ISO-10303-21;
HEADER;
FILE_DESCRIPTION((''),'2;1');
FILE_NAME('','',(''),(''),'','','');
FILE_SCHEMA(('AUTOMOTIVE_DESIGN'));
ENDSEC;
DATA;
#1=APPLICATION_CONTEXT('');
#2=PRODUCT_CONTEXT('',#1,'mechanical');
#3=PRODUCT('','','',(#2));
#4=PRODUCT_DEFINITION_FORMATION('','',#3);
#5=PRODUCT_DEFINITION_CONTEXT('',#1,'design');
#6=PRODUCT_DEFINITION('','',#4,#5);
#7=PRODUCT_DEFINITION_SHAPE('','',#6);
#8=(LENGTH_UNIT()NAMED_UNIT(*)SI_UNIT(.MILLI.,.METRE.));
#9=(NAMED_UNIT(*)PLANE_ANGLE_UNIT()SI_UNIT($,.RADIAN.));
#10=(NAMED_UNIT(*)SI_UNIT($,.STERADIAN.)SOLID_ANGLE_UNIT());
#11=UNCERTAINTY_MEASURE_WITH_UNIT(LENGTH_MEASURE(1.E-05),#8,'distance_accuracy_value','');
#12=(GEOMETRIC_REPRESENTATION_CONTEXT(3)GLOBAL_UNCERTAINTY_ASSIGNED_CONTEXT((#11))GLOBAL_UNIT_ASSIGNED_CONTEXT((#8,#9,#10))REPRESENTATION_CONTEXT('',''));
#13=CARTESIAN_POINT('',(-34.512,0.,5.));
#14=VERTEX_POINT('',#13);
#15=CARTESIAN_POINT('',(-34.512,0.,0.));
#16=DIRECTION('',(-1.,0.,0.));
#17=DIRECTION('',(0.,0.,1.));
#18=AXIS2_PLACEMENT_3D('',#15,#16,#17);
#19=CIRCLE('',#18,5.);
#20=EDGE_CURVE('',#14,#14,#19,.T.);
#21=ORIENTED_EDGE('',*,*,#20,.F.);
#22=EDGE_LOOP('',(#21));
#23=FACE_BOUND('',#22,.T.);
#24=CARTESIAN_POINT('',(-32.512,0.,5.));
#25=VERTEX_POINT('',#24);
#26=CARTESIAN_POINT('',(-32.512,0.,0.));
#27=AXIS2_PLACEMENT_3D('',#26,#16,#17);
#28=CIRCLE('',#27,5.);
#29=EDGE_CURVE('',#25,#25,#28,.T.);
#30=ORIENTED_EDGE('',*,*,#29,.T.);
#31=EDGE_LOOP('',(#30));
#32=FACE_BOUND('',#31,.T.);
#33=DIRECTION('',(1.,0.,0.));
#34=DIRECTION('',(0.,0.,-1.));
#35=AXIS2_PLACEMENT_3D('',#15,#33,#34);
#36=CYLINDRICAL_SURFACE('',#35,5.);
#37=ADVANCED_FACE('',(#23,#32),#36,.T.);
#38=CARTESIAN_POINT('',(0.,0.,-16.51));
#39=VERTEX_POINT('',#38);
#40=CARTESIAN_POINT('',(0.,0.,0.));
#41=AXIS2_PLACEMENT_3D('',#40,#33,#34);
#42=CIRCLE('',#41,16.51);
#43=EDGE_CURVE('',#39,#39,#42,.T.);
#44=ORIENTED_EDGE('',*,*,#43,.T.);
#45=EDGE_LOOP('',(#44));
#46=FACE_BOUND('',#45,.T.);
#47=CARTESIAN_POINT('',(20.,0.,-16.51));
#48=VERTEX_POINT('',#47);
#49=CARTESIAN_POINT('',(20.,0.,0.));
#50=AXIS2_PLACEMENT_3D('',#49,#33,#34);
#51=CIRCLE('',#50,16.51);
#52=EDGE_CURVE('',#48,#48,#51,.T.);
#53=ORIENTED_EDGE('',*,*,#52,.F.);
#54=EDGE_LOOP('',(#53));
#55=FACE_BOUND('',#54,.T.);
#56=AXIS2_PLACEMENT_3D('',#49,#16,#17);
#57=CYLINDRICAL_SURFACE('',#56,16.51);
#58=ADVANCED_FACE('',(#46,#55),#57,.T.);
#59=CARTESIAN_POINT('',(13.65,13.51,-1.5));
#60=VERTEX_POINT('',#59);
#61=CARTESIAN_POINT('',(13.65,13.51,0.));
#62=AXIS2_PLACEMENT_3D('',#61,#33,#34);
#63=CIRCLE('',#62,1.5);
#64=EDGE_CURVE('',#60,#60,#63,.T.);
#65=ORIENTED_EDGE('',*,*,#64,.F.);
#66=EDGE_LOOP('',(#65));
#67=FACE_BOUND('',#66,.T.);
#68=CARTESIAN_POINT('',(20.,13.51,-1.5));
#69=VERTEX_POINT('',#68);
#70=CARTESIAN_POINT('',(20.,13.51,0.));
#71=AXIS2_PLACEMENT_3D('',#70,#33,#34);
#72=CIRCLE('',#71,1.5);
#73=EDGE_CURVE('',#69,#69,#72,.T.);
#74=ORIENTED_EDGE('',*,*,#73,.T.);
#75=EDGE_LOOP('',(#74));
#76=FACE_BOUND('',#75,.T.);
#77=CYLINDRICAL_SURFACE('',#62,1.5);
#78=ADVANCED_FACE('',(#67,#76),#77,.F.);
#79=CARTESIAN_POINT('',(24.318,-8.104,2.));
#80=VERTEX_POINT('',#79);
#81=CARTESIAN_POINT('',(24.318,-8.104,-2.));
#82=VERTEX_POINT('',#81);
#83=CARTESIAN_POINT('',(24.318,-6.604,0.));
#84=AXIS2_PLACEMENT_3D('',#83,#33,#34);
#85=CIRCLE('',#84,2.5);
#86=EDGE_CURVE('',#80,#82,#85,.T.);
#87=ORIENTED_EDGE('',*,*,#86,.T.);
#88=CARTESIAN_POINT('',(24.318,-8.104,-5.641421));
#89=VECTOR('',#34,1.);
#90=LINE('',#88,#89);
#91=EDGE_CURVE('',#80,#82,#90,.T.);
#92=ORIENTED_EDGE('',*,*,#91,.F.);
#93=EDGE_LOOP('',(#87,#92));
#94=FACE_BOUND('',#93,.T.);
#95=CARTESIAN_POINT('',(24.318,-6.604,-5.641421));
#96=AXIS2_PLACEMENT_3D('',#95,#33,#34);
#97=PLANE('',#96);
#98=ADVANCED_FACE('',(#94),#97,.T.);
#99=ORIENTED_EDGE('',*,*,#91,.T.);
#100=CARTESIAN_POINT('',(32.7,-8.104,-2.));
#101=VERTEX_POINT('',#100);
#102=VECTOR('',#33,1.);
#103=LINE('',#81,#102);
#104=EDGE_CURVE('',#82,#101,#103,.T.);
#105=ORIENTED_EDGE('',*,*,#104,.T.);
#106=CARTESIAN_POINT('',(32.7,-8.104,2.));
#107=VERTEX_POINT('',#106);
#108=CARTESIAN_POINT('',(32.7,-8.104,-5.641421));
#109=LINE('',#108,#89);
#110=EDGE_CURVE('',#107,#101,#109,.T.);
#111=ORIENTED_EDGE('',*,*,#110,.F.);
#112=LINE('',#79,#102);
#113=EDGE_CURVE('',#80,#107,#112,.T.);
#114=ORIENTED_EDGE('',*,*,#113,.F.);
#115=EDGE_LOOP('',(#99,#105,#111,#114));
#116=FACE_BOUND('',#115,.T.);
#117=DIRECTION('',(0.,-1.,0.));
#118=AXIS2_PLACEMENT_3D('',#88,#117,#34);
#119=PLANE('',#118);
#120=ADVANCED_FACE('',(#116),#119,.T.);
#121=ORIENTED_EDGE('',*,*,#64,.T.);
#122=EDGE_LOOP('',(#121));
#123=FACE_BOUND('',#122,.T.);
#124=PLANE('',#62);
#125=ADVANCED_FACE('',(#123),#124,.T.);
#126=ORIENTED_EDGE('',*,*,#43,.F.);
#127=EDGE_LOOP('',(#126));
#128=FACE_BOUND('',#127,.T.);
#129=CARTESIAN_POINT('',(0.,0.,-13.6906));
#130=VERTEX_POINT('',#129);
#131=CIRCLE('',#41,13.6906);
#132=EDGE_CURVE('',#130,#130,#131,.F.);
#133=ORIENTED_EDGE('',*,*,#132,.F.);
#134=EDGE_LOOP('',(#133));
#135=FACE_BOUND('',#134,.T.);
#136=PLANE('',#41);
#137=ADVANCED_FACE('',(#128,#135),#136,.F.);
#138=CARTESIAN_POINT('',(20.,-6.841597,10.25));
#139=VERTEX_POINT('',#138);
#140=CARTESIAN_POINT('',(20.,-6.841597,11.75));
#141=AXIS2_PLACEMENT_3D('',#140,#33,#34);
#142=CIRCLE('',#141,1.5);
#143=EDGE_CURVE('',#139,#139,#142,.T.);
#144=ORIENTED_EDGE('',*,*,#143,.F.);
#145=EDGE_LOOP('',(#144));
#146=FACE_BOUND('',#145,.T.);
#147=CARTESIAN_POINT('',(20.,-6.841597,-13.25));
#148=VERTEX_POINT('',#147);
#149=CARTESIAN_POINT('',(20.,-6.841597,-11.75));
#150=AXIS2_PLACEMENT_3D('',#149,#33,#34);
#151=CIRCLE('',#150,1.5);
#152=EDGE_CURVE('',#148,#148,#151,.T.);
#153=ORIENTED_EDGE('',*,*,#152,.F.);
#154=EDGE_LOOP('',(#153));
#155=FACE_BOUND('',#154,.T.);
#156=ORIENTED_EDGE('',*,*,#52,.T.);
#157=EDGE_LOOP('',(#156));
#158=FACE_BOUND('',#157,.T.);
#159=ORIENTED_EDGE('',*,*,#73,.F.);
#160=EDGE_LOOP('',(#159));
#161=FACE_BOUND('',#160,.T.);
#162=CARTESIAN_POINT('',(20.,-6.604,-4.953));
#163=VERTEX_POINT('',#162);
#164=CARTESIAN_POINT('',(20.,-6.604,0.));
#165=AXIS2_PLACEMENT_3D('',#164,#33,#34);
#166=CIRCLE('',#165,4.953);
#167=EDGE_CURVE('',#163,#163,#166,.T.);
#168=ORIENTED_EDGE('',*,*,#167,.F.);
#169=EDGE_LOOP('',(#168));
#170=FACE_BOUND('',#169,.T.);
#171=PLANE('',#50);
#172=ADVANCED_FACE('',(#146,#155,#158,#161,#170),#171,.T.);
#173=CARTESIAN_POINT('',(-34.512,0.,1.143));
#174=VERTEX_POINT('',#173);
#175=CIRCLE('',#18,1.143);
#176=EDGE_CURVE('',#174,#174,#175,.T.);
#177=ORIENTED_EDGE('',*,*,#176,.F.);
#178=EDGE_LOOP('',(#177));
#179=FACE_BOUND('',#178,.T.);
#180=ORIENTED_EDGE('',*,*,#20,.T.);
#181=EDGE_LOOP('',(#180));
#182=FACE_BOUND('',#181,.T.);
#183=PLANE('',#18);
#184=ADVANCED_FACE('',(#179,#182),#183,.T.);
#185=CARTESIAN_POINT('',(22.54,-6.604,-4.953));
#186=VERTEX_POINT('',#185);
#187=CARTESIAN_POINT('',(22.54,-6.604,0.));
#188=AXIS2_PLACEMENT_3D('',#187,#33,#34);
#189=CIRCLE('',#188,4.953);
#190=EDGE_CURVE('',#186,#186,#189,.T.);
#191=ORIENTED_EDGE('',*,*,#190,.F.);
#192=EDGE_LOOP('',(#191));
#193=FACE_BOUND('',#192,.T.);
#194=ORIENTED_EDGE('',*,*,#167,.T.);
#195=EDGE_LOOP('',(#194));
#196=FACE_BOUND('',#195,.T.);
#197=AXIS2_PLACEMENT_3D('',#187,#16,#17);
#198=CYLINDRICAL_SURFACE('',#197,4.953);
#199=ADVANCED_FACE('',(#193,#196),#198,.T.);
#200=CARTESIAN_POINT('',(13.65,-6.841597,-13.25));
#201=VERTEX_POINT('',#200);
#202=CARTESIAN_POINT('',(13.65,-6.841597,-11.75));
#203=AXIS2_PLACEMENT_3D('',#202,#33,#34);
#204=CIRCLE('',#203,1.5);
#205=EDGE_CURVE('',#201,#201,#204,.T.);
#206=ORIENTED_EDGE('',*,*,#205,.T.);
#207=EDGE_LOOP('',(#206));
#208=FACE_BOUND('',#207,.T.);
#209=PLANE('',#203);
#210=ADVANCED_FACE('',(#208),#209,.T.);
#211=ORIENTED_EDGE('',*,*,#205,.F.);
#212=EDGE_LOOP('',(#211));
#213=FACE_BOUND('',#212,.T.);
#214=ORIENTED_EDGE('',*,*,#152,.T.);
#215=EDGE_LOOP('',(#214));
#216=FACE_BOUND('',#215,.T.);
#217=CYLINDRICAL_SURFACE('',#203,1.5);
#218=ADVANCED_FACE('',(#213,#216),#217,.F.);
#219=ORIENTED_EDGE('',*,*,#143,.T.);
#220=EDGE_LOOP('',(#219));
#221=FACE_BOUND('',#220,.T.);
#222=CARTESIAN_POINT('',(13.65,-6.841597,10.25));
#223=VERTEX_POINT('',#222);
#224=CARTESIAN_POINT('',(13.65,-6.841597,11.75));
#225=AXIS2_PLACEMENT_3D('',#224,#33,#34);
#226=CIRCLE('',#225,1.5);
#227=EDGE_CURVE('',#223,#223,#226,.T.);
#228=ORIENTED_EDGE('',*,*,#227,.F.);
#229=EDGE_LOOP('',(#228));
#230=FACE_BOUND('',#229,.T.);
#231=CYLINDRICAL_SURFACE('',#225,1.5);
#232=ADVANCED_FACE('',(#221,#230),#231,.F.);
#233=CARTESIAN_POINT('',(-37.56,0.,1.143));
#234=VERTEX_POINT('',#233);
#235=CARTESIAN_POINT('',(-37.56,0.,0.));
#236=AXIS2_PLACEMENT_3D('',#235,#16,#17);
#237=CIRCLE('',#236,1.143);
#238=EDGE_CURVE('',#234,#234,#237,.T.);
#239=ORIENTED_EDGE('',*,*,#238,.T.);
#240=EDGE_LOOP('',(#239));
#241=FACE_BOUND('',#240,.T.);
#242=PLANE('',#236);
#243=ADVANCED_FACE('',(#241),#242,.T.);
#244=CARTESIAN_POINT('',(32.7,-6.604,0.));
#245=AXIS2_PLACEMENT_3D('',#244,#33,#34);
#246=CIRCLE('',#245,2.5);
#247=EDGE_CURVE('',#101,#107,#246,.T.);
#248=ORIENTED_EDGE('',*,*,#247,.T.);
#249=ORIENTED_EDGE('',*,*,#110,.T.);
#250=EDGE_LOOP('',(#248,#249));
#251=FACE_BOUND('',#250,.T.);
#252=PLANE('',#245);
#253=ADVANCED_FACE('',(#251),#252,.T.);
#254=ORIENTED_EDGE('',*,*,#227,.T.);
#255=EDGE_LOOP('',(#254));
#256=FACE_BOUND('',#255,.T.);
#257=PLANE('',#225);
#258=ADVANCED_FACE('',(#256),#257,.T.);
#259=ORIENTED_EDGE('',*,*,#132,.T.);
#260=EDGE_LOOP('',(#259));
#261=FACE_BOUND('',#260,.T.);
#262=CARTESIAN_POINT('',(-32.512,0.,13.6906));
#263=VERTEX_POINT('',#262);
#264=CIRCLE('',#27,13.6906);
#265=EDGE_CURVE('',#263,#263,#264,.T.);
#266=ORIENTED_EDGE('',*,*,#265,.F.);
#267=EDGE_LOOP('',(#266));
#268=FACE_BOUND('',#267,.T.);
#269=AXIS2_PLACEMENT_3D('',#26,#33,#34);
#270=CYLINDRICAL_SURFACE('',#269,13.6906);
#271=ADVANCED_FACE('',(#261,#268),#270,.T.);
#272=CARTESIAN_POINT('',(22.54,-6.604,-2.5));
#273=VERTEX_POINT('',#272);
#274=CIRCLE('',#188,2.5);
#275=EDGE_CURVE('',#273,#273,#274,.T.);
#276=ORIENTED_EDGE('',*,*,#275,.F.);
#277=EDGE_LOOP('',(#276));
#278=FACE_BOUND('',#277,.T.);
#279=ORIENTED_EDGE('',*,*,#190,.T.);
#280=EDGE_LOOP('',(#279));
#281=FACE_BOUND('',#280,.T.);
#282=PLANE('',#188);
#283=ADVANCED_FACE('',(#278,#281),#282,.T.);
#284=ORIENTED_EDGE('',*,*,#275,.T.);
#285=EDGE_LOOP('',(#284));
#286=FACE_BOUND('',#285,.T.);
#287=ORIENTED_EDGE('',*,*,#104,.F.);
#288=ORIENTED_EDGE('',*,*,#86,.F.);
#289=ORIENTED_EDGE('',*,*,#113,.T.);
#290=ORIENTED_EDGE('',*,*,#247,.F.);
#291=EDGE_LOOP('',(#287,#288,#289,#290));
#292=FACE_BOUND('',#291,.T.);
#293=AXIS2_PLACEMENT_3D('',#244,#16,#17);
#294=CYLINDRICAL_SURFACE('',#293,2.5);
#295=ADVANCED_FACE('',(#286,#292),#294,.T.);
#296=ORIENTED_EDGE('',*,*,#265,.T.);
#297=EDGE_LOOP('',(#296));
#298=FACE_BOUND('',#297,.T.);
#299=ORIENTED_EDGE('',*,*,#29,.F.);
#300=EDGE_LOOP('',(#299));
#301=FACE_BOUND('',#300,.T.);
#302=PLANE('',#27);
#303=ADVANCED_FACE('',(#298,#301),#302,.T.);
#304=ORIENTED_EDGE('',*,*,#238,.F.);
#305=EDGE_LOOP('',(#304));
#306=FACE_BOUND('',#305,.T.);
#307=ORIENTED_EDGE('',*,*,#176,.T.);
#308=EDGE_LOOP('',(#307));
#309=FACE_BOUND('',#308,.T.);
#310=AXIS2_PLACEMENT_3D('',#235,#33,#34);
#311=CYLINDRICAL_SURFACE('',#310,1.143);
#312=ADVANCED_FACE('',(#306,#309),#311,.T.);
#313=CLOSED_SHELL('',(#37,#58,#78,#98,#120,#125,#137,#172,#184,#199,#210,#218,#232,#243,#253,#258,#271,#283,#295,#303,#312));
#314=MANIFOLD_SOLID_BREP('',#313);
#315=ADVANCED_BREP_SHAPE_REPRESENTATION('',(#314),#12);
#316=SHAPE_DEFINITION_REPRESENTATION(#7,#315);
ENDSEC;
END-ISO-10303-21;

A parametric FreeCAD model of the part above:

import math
import FreeCAD as App
import Part
import Sketcher
Q = App.Units.Quantity

doc = App.newDocument("Part")
params = doc.addObject("Spreadsheet::Sheet", "Params")
for row, (alias, value) in enumerate([
    ("sketch1_diameter", "1.3 in"),
    ("pad1_length", "20 mm"),
    ("sketch2_diameter", "1.078 in"),
    ("pad2_length", "1.28 in"),
    ("pocket1_length", "0.25 in"),
    ("sketch4_diameter", "0.39 in"),
    ("pad3_length", "0.1 in"),
    ("pad4_length", "0.4 in"),
    ("pad5_length", "2 mm"),
    ("sketch7_diameter", "0.09 in"),
    ("pad6_length", "0.12 in"),
    ("pocket2_length", "0.33 in"),
], start=1):
    params.set(f"A{row}", alias)
    params.set(f"B{row}", "=" + value)
    params.setAlias(f"B{row}", alias)

body = doc.addObject("PartDesign::Body", "Body")

sketch1 = doc.addObject("Sketcher::SketchObject", "Sketch")
body.addObject(sketch1)
sketch1.AttachmentSupport = (doc.YZ_Plane, [""])
sketch1.MapMode = "FlatFace"
sketch1.addGeometry(Part.Circle(App.Vector(0, 0, 0), App.Vector(0, 0, 1), 17), False)
sketch1.addConstraint(Sketcher.Constraint("Coincident", 0, 3, -1, 1))
sketch1.addConstraint(Sketcher.Constraint("Diameter", 0, Q("1.3 in")))
sketch1.setExpression("Constraints[1]", "Params.sketch1_diameter")
pad1 = doc.addObject("PartDesign::Pad", "Pad")
body.addObject(pad1)
pad1.Profile = sketch1
pad1.setExpression("Length", "Params.pad1_length")

sketch2 = doc.addObject("Sketcher::SketchObject", "Sketch001")
body.addObject(sketch2)
sketch2.AttachmentSupport = (doc.YZ_Plane, [""])
sketch2.MapMode = "FlatFace"
sketch2.addGeometry(Part.Circle(App.Vector(0, 0, 0), App.Vector(0, 0, 1), 14), False)
sketch2.addConstraint(Sketcher.Constraint("Coincident", 0, 3, -1, 1))
sketch2.addConstraint(Sketcher.Constraint("Diameter", 0, Q("1.078 in")))
sketch2.setExpression("Constraints[1]", "Params.sketch2_diameter")
pad2 = doc.addObject("PartDesign::Pad", "Pad001")
body.addObject(pad2)
pad2.Profile = sketch2
pad2.setExpression("Length", "Params.pad2_length")
pad2.Reversed = True

sketch3 = doc.addObject("Sketcher::SketchObject", "Sketch002")
body.addObject(sketch3)
sketch3.AttachmentSupport = (doc.YZ_Plane, [""])
sketch3.MapMode = "FlatFace"
sketch3.AttachmentOffset = App.Placement(App.Vector(0, 0, 20), App.Rotation())
sketch3.addGeometry(Part.Circle(App.Vector(13.5, 0, 0), App.Vector(0, 0, 1), 1.5), False)
sketch3.addGeometry(Part.Circle(App.Vector(-6.8, -11.8, 0), App.Vector(0, 0, 1), 1.5), False)
sketch3.addGeometry(Part.Circle(App.Vector(-6.8, 11.8, 0), App.Vector(0, 0, 1), 1.5), False)
sketch3.addConstraint(Sketcher.Constraint("Equal", 0, 1))
sketch3.addConstraint(Sketcher.Constraint("Equal", 1, 2))
sketch3.addConstraint(Sketcher.Constraint("Symmetric", 1, 3, 2, 3, -1))
sketch3.addConstraint(Sketcher.Constraint("PointOnObject", 0, 3, -1))
sketch3.addConstraint(Sketcher.Constraint("Diameter", 0, 3.0))
sketch3.addConstraint(Sketcher.Constraint("DistanceX", -1, 1, 0, 3, 13.51))
sketch3.addConstraint(Sketcher.Constraint("DistanceY", 1, 3, -1, 1, 11.75))
sketch3.addConstraint(Sketcher.Constraint("DistanceX", 1, 3, -1, 1, 6.841597))
pocket1 = doc.addObject("PartDesign::Pocket", "Pocket")
body.addObject(pocket1)
pocket1.Profile = sketch3
pocket1.setExpression("Length", "Params.pocket1_length")

sketch4 = doc.addObject("Sketcher::SketchObject", "Sketch003")
body.addObject(sketch4)
sketch4.AttachmentSupport = (doc.YZ_Plane, [""])
sketch4.MapMode = "FlatFace"
sketch4.AttachmentOffset = App.Placement(App.Vector(0, 0, 20), App.Rotation())
sketch4.addGeometry(Part.Circle(App.Vector(-6.6, 0, 0), App.Vector(0, 0, 1), 5), False)
sketch4.addConstraint(Sketcher.Constraint("PointOnObject", 0, 3, -1))
sketch4.addConstraint(Sketcher.Constraint("Diameter", 0, Q("0.39 in")))
sketch4.addConstraint(Sketcher.Constraint("DistanceX", 0, 3, -1, 1, Q("0.26 in")))
sketch4.setExpression("Constraints[1]", "Params.sketch4_diameter")
pad3 = doc.addObject("PartDesign::Pad", "Pad002")
body.addObject(pad3)
pad3.Profile = sketch4
pad3.setExpression("Length", "Params.pad3_length")

sketch5 = doc.addObject("Sketcher::SketchObject", "Sketch004")
body.addObject(sketch5)
sketch5.AttachmentSupport = (doc.YZ_Plane, [""])
sketch5.MapMode = "FlatFace"
sketch5.AttachmentOffset = App.Placement(App.Vector(0, 0, 22.54), App.Rotation())
sketch5.addGeometry(Part.Circle(App.Vector(-6.6, 0, 0), App.Vector(0, 0, 1), 2.5), False)
sketch5.addConstraint(Sketcher.Constraint("PointOnObject", 0, 3, -1))
sketch5.addConstraint(Sketcher.Constraint("Diameter", 0, 5.0))
sketch5.addConstraint(Sketcher.Constraint("DistanceX", 0, 3, -1, 1, Q("0.26 in")))
pad4 = doc.addObject("PartDesign::Pad", "Pad003")
body.addObject(pad4)
pad4.Profile = sketch5
pad4.setExpression("Length", "Params.pad4_length")

sketch6 = doc.addObject("Sketcher::SketchObject", "Sketch005")
body.addObject(sketch6)
sketch6.AttachmentSupport = (doc.YZ_Plane, [""])
sketch6.MapMode = "FlatFace"
sketch6.AttachmentOffset = App.Placement(App.Vector(0, 0, -1.28 * 25.4), App.Rotation())
sketch6.addGeometry(Part.Circle(App.Vector(0, 0, 0), App.Vector(0, 0, 1), 5), False)
sketch6.addConstraint(Sketcher.Constraint("Coincident", 0, 3, -1, 1))
sketch6.addConstraint(Sketcher.Constraint("Diameter", 0, 10.0))
pad5 = doc.addObject("PartDesign::Pad", "Pad004")
body.addObject(pad5)
pad5.Profile = sketch6
pad5.setExpression("Length", "Params.pad5_length")
pad5.Reversed = True

sketch7 = doc.addObject("Sketcher::SketchObject", "Sketch006")
body.addObject(sketch7)
sketch7.AttachmentSupport = (doc.YZ_Plane, [""])
sketch7.MapMode = "FlatFace"
sketch7.AttachmentOffset = App.Placement(App.Vector(0, 0, -34.512), App.Rotation())
sketch7.addGeometry(Part.Circle(App.Vector(0, 0, 0), App.Vector(0, 0, 1), 1.1), False)
sketch7.addConstraint(Sketcher.Constraint("Coincident", 0, 3, -1, 1))
sketch7.addConstraint(Sketcher.Constraint("Diameter", 0, Q("0.09 in")))
sketch7.setExpression("Constraints[1]", "Params.sketch7_diameter")
pad6 = doc.addObject("PartDesign::Pad", "Pad005")
body.addObject(pad6)
pad6.Profile = sketch7
pad6.setExpression("Length", "Params.pad6_length")
pad6.Reversed = True

sketch8 = doc.addObject("Sketcher::SketchObject", "Sketch007")
body.addObject(sketch8)
sketch8.AttachmentSupport = (doc.YZ_Plane, [""])
sketch8.MapMode = "FlatFace"
sketch8.AttachmentOffset = App.Placement(App.Vector(0, 0, 32.7), App.Rotation())
sketch8.addGeometry(Part.LineSegment(App.Vector(-8.1, -2, 0), App.Vector(-8.1, 2, 0)), False)
sketch8.addGeometry(Part.ArcOfCircle(Part.Circle(App.Vector(-6.6, 0, 0), App.Vector(0, 0, 1), 2.5), math.radians(127), math.radians(233)), False)
sketch8.addConstraint(Sketcher.Constraint("Coincident", 0, 1, 1, 2))
sketch8.addConstraint(Sketcher.Constraint("Coincident", 1, 1, 0, 2))
sketch8.addConstraint(Sketcher.Constraint("Vertical", 0))
sketch8.addConstraint(Sketcher.Constraint("PointOnObject", 1, 3, -1))
sketch8.addConstraint(Sketcher.Constraint("DistanceX", 1, 3, -1, 1, Q("0.26 in")))
sketch8.addConstraint(Sketcher.Constraint("Radius", 1, 2.5))
sketch8.addConstraint(Sketcher.Constraint("DistanceY", 0, 1, 0, 2, 4.0))
pocket2 = doc.addObject("PartDesign::Pocket", "Pocket001")
body.addObject(pocket2)
pocket2.Profile = sketch8
pocket2.setExpression("Length", "Params.pocket2_length")

doc.recompute()
